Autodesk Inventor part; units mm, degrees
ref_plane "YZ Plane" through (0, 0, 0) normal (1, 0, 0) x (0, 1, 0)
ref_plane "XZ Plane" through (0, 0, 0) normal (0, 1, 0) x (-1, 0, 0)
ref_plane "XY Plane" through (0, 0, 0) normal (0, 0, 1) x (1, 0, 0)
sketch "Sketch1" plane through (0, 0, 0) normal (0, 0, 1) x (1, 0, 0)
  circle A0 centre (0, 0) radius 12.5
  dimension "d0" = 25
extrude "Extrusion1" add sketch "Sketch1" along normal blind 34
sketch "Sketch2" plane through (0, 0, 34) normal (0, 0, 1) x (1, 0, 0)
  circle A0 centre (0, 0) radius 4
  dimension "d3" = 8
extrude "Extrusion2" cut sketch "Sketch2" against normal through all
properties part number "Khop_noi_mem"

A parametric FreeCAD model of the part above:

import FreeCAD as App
import Part
import Sketcher

doc = App.newDocument("Part")
body = doc.addObject("PartDesign::Body", "Body")

# Sketch on XY plane
sketch1 = body.newObject("Sketcher::SketchObject", "Sketch")
sketch1.AttachmentSupport = (doc.getObject("XY_Plane"), [""])
sketch1.MapMode = "FlatFace"
sketch1.addGeometry(Part.Circle(App.Vector(0, 0, 0), App.Vector(0, 0, 1), 12.5), False)
sketch1.addConstraint([
    Sketcher.Constraint("Coincident", 0, 3, -1, 1),
    Sketcher.Constraint("Diameter", 0, 25.0),
])
pad1 = body.newObject("PartDesign::Pad", "Pad")
pad1.Profile = sketch1
pad1.Length = 34

# Sketch on XY plane
sketch2 = body.newObject("Sketcher::SketchObject", "Sketch001")
sketch2.AttachmentSupport = (doc.getObject("XY_Plane"), [""])
sketch2.MapMode = "FlatFace"
sketch2.AttachmentOffset = App.Placement(App.Vector(0, 0, 34), App.Rotation())
sketch2.addGeometry(Part.Circle(App.Vector(0, 0, 0), App.Vector(0, 0, 1), 4), False)
sketch2.addConstraint([
    Sketcher.Constraint("Coincident", 0, 3, -1, 1),
    Sketcher.Constraint("Diameter", 0, 8.0),
])
pocket1 = body.newObject("PartDesign::Pocket", "Pocket")
pocket1.Profile = sketch2
pocket1.Type = "ThroughAll"

doc.recompute()
